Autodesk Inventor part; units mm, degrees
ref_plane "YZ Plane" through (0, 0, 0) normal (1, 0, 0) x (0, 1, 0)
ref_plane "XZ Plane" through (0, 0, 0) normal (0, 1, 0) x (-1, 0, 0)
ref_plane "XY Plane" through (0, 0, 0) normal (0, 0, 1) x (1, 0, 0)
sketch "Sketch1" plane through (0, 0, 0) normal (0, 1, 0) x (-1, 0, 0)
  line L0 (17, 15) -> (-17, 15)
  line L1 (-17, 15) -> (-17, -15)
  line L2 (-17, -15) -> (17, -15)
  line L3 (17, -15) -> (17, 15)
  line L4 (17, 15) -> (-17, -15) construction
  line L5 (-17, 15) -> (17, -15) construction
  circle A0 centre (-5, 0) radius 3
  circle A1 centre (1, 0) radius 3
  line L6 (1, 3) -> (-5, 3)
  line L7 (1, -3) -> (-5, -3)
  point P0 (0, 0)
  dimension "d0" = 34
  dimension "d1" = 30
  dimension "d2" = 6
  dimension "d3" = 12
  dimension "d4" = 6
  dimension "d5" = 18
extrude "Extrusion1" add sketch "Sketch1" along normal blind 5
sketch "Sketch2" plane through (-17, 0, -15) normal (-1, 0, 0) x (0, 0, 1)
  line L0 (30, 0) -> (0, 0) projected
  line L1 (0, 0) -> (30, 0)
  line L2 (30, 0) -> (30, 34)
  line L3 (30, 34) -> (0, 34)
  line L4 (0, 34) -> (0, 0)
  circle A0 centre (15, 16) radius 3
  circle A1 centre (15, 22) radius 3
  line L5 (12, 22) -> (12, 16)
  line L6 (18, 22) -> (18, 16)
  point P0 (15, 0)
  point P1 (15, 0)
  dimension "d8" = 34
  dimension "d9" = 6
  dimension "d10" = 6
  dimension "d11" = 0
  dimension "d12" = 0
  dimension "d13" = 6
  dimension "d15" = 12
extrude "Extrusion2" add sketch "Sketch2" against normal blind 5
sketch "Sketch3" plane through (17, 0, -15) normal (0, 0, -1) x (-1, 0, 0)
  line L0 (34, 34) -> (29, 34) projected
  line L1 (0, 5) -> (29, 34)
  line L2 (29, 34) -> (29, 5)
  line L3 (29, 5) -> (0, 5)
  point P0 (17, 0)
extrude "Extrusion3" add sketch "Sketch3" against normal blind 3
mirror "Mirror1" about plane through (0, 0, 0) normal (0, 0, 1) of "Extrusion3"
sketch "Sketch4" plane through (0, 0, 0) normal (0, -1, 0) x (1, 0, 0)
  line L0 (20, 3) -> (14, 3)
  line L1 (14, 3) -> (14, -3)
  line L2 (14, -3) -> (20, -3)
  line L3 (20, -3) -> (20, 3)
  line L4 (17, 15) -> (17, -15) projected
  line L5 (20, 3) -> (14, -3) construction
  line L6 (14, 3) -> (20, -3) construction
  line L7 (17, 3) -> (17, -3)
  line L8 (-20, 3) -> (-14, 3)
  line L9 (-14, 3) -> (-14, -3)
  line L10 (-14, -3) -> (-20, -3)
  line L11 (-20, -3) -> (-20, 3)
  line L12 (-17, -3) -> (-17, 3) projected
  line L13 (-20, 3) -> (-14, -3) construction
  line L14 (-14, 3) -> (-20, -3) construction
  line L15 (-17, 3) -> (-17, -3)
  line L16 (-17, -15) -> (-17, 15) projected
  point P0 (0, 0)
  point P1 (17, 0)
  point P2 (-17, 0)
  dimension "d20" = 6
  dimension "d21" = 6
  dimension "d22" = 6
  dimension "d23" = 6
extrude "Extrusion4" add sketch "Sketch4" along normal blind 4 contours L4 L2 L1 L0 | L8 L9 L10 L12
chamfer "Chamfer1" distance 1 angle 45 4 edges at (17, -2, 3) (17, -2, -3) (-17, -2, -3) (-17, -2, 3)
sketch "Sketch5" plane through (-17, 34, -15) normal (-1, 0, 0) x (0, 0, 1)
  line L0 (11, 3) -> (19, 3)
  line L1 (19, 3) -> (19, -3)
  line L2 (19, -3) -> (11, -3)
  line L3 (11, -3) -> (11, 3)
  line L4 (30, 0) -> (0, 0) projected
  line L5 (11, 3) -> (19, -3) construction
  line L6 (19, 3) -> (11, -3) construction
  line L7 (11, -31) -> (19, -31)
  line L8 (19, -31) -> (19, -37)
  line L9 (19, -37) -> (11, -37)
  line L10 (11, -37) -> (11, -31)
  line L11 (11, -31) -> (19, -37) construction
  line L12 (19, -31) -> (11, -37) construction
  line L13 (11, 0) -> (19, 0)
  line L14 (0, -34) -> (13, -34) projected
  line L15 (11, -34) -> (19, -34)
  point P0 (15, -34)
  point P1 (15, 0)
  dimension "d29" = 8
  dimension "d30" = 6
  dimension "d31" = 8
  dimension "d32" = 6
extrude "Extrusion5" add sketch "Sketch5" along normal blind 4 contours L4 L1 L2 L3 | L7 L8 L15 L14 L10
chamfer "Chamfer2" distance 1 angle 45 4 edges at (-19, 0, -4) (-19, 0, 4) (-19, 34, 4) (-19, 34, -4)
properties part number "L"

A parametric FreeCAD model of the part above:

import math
import FreeCAD as App
import Part
import Sketcher
Q = App.Units.Quantity


def edges_at(feature, points):
    """Names of the edges that pass closest to the given points."""
    edges = feature.Shape.Edges
    near = lambda p: min(range(len(edges)), key=lambda i: edges[i].distToShape(Part.Vertex(*p))[0])
    return sorted({f"Edge{near(p) + 1}" for p in points})


def add_polygon(sketch, points):
    """Adds a closed chain of lines whose ends are joined by coincident constraints."""
    first, n = sketch.GeometryCount, len(points)
    for a, b in zip(points, points[1:] + points[:1]):
        sketch.addGeometry(Part.LineSegment(App.Vector(*a, 0), App.Vector(*b, 0)), False)
    for i in range(n):
        sketch.addConstraint(Sketcher.Constraint("Coincident", first + i, 2, first + (i + 1) % n, 1))

doc = App.newDocument("Part")
body = doc.addObject("PartDesign::Body", "Body")

# Sketch on XZ plane
sketch1 = body.newObject("Sketcher::SketchObject", "Sketch")
sketch1.AttachmentSupport = (doc.getObject("XZ_Plane"), [""])
sketch1.MapMode = "FlatFace"
add_polygon(sketch1, [(-17, -15), (-17, 15), (17, 15), (17, -15)])  # lines 0-3
sketch1.addGeometry(Part.ArcOfCircle(Part.Circle(App.Vector(5, 0, 0), App.Vector(0, 0, 1), 3), math.radians(-90), math.radians(90)), False)  # 4
sketch1.addGeometry(Part.LineSegment(App.Vector(5, 3, 0), App.Vector(-1, 3, 0)), False)  # 5
sketch1.addGeometry(Part.ArcOfCircle(Part.Circle(App.Vector(-1, 0, 0), App.Vector(0, 0, 1), 3), math.radians(90), math.radians(270)), False)  # 6
sketch1.addGeometry(Part.LineSegment(App.Vector(-1, -3, 0), App.Vector(5, -3, 0)), False)  # 7
sketch1.addConstraint([
    Sketcher.Constraint("Tangent", 4, 2, 5, 1),
    Sketcher.Constraint("Tangent", 5, 2, 6, 1),
    Sketcher.Constraint("Tangent", 6, 2, 7, 1),
    Sketcher.Constraint("Tangent", 7, 2, 4, 1),
    Sketcher.Constraint("Vertical", 0),
    Sketcher.Constraint("Horizontal", 1),
    Sketcher.Constraint("Vertical", 2),
    Sketcher.Constraint("Horizontal", 3),
    Sketcher.Constraint("Horizontal", 5),
    Sketcher.Constraint("Horizontal", 7),
    Sketcher.Constraint("Symmetric", 0, 2, 2, 2, -1, 1),
    Sketcher.Constraint("PointOnObject", 4, 3, -1),
    Sketcher.Constraint("Radius", 4, Q("3 mm")),
    Sketcher.Constraint("DistanceX", 1, 1, 1, 2, Q("34 mm")),
    Sketcher.Constraint("DistanceX", 5, 2, 5, 1, Q("6 mm")),
    Sketcher.Constraint("DistanceY", 0, 1, 0, 2, Q("30 mm")),
    Sketcher.Constraint("DistanceX", 4, 3, 1, 2, Q("12 mm")),
])
pad1 = body.newObject("PartDesign::Pad", "Pad")
pad1.Profile = sketch1
pad1.Length = 5
pad1.Reversed = True

# Sketch on YZ plane
sketch2 = body.newObject("Sketcher::SketchObject", "Sketch001")
sketch2.AttachmentSupport = (doc.getObject("YZ_Plane"), [""])
sketch2.MapMode = "FlatFace"
sketch2.AttachmentOffset = App.Placement(App.Vector(0, 0, -17), App.Rotation())
add_polygon(sketch2, [(0, -15), (0, 15), (34, 15), (34, -15)])  # lines 0-3
sketch2.addGeometry(Part.ArcOfCircle(Part.Circle(App.Vector(16, 0, 0), App.Vector(0, 0, 1), 3), math.radians(90), math.radians(270)), False)  # 4
sketch2.addGeometry(Part.LineSegment(App.Vector(16, -3, 0), App.Vector(22, -3, 0)), False)  # 5
sketch2.addGeometry(Part.ArcOfCircle(Part.Circle(App.Vector(22, 0, 0), App.Vector(0, 0, 1), 3), math.radians(-90), math.radians(90)), False)  # 6
sketch2.addGeometry(Part.LineSegment(App.Vector(22, 3, 0), App.Vector(16, 3, 0)), False)  # 7
sketch2.addConstraint([
    Sketcher.Constraint("Tangent", 4, 2, 5, 1),
    Sketcher.Constraint("Tangent", 5, 2, 6, 1),
    Sketcher.Constraint("Tangent", 6, 2, 7, 1),
    Sketcher.Constraint("Tangent", 7, 2, 4, 1),
    Sketcher.Constraint("Vertical", 0),
    Sketcher.Constraint("Horizontal", 1),
    Sketcher.Constraint("Vertical", 2),
    Sketcher.Constraint("Horizontal", 3),
    Sketcher.Constraint("Horizontal", 5),
    Sketcher.Constraint("Horizontal", 7),
    Sketcher.Constraint("Symmetric", 0, 2, 3, 2, -1, 1),
    Sketcher.Constraint("PointOnObject", 4, 3, -1),
    Sketcher.Constraint("Radius", 4, Q("3 mm")),
    Sketcher.Constraint("DistanceX", 1, 1, 1, 2, Q("34 mm")),
    Sketcher.Constraint("DistanceX", 5, 1, 5, 2, Q("6 mm")),
    Sketcher.Constraint("DistanceX", 6, 3, 1, 2, Q("12 mm")),
    Sketcher.Constraint("DistanceY", 3, 2, 4, 2, Q("12 mm")),
])
pad2 = body.newObject("PartDesign::Pad", "Pad001")
pad2.Profile = sketch2
pad2.Length = 5

# Sketch on XY plane
sketch3 = body.newObject("Sketcher::SketchObject", "Sketch002")
sketch3.AttachmentSupport = (doc.getObject("XY_Plane"), [""])
sketch3.MapMode = "FlatFace"
sketch3.AttachmentOffset = App.Placement(App.Vector(0, 0, -15), App.Rotation())
add_polygon(sketch3, [(-12, 34), (17, 5), (-12, 5)])  # lines 0-2
sketch3.addConstraint([
    Sketcher.Constraint("Horizontal", 1),
    Sketcher.Constraint("Vertical", 2),
    Sketcher.Constraint("Equal", 1, 2),
    Sketcher.Constraint("DistanceX", 1, 2, 1, 1, Q("29 mm")),
    Sketcher.Constraint("DistanceX", -1, 1, 0, 2, Q("17 mm")),
    Sketcher.Constraint("DistanceY", -1, 1, 0, 2, Q("5 mm")),
])
pad3 = body.newObject("PartDesign::Pad", "Pad002")
pad3.Profile = sketch3
pad3.Length = 3
doc.recompute()

mirrored = body.newObject("PartDesign::Mirrored", "Mirrored")
mirrored.Originals = [pad3]
mirrored.MirrorPlane = (doc.getObject("XY_Plane"), [""])
body.Tip = mirrored

# Sketch on XZ plane
sketch4 = body.newObject("Sketcher::SketchObject", "Sketch003")
sketch4.AttachmentSupport = (doc.getObject("XZ_Plane"), [""])
sketch4.MapMode = "FlatFace"
add_polygon(sketch4, [(17, -3), (17, 3), (14, 3), (14, -3)])  # lines 0-3
add_polygon(sketch4, [(-14, 3), (-17, 3), (-17, -3), (-14, -3)])  # lines 4-7
sketch4.addConstraint([
    Sketcher.Constraint("Vertical", 0),
    Sketcher.Constraint("Horizontal", 1),
    Sketcher.Constraint("Vertical", 2),
    Sketcher.Constraint("Horizontal", 3),
    Sketcher.Constraint("Horizontal", 4),
    Sketcher.Constraint("Vertical", 5),
    Sketcher.Constraint("Horizontal", 6),
    Sketcher.Constraint("Vertical", 7),
    Sketcher.Constraint("Symmetric", 3, 2, 4, 2, -1, 1),
    Sketcher.Constraint("Symmetric", 1, 2, 6, 2, -1, 1),
    Sketcher.Constraint("Horizontal", 1, 2, 4, 2),
    Sketcher.Constraint("DistanceY", 0, 1, 0, 2, Q("6 mm")),
    Sketcher.Constraint("DistanceX", 1, 2, 1, 1, Q("3 mm")),
    Sketcher.Constraint("DistanceX", -1, 1, 0, 2, Q("17 mm")),
])
pad4 = body.newObject("PartDesign::Pad", "Pad003")
pad4.Profile = sketch4
pad4.Length = 4
doc.recompute()

chamfer = body.newObject("PartDesign::Chamfer", "Chamfer")
chamfer.Base = (pad4, edges_at(pad4, [
    (17, -2, 3),
    (17, -2, -3),
    (-17, -2, -3),
    (-17, -2, 3),
]))
chamfer.Size = 1

# Sketch on YZ plane
sketch5 = body.newObject("Sketcher::SketchObject", "Sketch004")
sketch5.AttachmentSupport = (doc.getObject("YZ_Plane"), [""])
sketch5.MapMode = "FlatFace"
sketch5.AttachmentOffset = App.Placement(App.Vector(0, 0, -17), App.Rotation())
add_polygon(sketch5, [(34, 4), (34, -4), (31, -4), (31, 4)])  # lines 0-3
add_polygon(sketch5, [(3, 4), (3, -4), (0, -4), (0, 4)])  # lines 4-7
sketch5.addConstraint([
    Sketcher.Constraint("Vertical", 0),
    Sketcher.Constraint("Horizontal", 1),
    Sketcher.Constraint("Vertical", 2),
    Sketcher.Constraint("Horizontal", 3),
    Sketcher.Constraint("Vertical", 4),
    Sketcher.Constraint("Horizontal", 5),
    Sketcher.Constraint("Vertical", 6),
    Sketcher.Constraint("Horizontal", 7),
    Sketcher.Constraint("Symmetric", 5, 2, 6, 2, -1, 1),
    Sketcher.Constraint("Horizontal", 1, 2, 4, 2),
    Sketcher.Constraint("Horizontal", 3, 2, 6, 2),
    Sketcher.Constraint("Equal", 3, 5),
    Sketcher.Constraint("DistanceY", 0, 2, 0, 1, Q("8 mm")),
    Sketcher.Constraint("DistanceX", 1, 2, 1, 1, Q("3 mm")),
    Sketcher.Constraint("DistanceX", -1, 1, 0, 2, Q("34 mm")),
])
pad5 = body.newObject("PartDesign::Pad", "Pad004")
pad5.Profile = sketch5
pad5.Length = 4
pad5.Reversed = True
doc.recompute()

chamfer2 = body.newObject("PartDesign::Chamfer", "Chamfer001")
chamfer2.Base = (pad5, edges_at(pad5, [
    (-19, 0, -4),
    (-19, 0, 4),
    (-19, 34, 4),
    (-19, 34, -4),
]))
chamfer2.Size = 1

doc.recompute()
